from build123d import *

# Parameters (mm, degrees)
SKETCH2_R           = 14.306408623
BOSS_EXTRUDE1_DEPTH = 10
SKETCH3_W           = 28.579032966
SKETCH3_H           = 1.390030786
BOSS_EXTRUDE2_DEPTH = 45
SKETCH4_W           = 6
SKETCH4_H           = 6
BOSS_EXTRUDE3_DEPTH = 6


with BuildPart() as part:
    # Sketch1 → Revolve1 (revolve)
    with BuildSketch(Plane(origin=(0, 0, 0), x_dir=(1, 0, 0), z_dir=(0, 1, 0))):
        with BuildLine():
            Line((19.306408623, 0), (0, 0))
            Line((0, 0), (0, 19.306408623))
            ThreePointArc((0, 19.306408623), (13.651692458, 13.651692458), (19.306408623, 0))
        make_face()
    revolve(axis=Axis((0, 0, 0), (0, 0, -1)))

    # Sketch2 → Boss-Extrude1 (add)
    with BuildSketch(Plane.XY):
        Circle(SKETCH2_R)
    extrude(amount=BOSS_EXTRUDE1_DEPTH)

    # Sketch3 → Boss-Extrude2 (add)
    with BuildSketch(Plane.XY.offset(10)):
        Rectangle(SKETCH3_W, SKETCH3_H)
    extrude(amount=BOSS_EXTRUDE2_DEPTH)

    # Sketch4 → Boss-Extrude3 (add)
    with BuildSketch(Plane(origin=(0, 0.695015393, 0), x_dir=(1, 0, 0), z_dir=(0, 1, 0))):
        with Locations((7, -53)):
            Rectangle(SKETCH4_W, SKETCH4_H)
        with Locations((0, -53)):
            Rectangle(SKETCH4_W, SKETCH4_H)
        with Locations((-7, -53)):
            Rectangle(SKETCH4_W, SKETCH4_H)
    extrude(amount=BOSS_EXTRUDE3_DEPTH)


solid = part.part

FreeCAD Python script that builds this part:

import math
import FreeCAD as App
import Part
import Sketcher

V = App.Vector
Q = App.Units.Quantity


def add_polygon(sketch, points):
    """Adds a closed chain of lines whose ends are joined by coincident constraints."""
    first, n = sketch.GeometryCount, len(points)
    for a, b in zip(points, points[1:] + points[:1]):
        sketch.addGeometry(Part.LineSegment(App.Vector(*a, 0), App.Vector(*b, 0)), False)
    for i in range(n):
        sketch.addConstraint(Sketcher.Constraint("Coincident", first + i, 2, first + (i + 1) % n, 1))

doc = App.newDocument("Part")
params = doc.addObject("Spreadsheet::Sheet", "Params")
for row, (alias, value) in enumerate([
    ("revolution_angle", "360 deg"),
    ("pad1_length", "10 mm"),
    ("pad2_length", "45 mm"),
    ("sketch4_width", "6 mm"),
    ("pad3_length", "6 mm"),
], start=1):
    params.set(f"A{row}", alias)
    params.set(f"B{row}", "=" + value)
    params.setAlias(f"B{row}", alias)

body = doc.addObject("PartDesign::Body", "Body")

# Sketch on XZ plane
sketch1 = body.newObject("Sketcher::SketchObject", "Sketch")
sketch1.AttachmentSupport = (doc.getObject("XZ_Plane"), [""])
sketch1.MapMode = "FlatFace"
sketch1.addGeometry([
    Part.LineSegment(V(0, 0, 0), V(19, 0, 0)),
    Part.ArcOfCircle(Part.Circle(V(0, 0, 0), V(0, 0, 1), 19), math.radians(-90), math.radians(0)),
    Part.LineSegment(V(0, -19, 0), V(0, 0, 0)),
], False)
sketch1.addConstraint([
    Sketcher.Constraint("Coincident", 0, 2, 1, 2),
    Sketcher.Constraint("Coincident", 1, 1, 2, 1),
    Sketcher.Constraint("Coincident", 2, 2, 0, 1),
    Sketcher.Constraint("Horizontal", 0),
    Sketcher.Constraint("Vertical", 2),
    Sketcher.Constraint("Coincident", 1, 3, -1, 1),
    Sketcher.Constraint("Coincident", 2, 2, -1, 1),
    Sketcher.Constraint("Radius", 1, Q("19.306409 mm")),
])
revolution = body.newObject("PartDesign::Revolution", "Revolution")
revolution.Profile = sketch1
revolution.ReferenceAxis = (sketch1, ["V_Axis"])
revolution.setExpression("Angle", "Params.revolution_angle")

# Sketch on XY plane
sketch2 = body.newObject("Sketcher::SketchObject", "Sketch001")
sketch2.AttachmentSupport = (doc.getObject("XY_Plane"), [""])
sketch2.MapMode = "FlatFace"
sketch2.addGeometry(Part.Circle(V(0, 0, 0), V(0, 0, 1), 14), False)
sketch2.addConstraint([
    Sketcher.Constraint("Coincident", 0, 3, -1, 1),
    Sketcher.Constraint("Diameter", 0, Q("28.612817 mm")),
])
pad1 = body.newObject("PartDesign::Pad", "Pad")
pad1.Profile = sketch2
pad1.setExpression("Length", "Params.pad1_length")

# Sketch on XY plane
sketch3 = body.newObject("Sketcher::SketchObject", "Sketch002")
sketch3.AttachmentSupport = (doc.getObject("XY_Plane"), [""])
sketch3.MapMode = "FlatFace"
sketch3.AttachmentOffset = App.Placement(V(0, 0, 10), App.Rotation())
add_polygon(sketch3, [(-14.3, 0.7), (-14.3, -0.7), (14.3, -0.7), (14.3, 0.7)])  # lines 0-3
sketch3.addConstraint([
    Sketcher.Constraint("Vertical", 0),
    Sketcher.Constraint("Horizontal", 1),
    Sketcher.Constraint("Vertical", 2),
    Sketcher.Constraint("Horizontal", 3),
    Sketcher.Constraint("Symmetric", 0, 2, 2, 2, -1, 1),
    Sketcher.Constraint("DistanceY", 0, 2, 0, 1, Q("1.390031 mm")),
    Sketcher.Constraint("DistanceX", 1, 1, 1, 2, Q("28.579033 mm")),
])
pad2 = body.newObject("PartDesign::Pad", "Pad001")
pad2.Profile = sketch3
pad2.setExpression("Length", "Params.pad2_length")

# Sketch on XZ plane
sketch4 = body.newObject("Sketcher::SketchObject", "Sketch003")
sketch4.AttachmentSupport = (doc.getObject("XZ_Plane"), [""])
sketch4.MapMode = "FlatFace"
sketch4.AttachmentOffset = App.Placement(V(0, 0, -0.695015), App.Rotation())
add_polygon(sketch4, [(4, 50), (4, 56), (10, 56), (10, 50)])  # lines 0-3
add_polygon(sketch4, [(-3, 50), (-3, 56), (3, 56), (3, 50)])  # lines 4-7
add_polygon(sketch4, [(-10, 50), (-10, 56), (-4, 56), (-4, 50)])  # lines 8-11
sketch4.addConstraint([
    Sketcher.Constraint("Vertical", 0),
    Sketcher.Constraint("Horizontal", 1),
    Sketcher.Constraint("Vertical", 2),
    Sketcher.Constraint("Horizontal", 3),
    Sketcher.Constraint("Vertical", 4),
    Sketcher.Constraint("Horizontal", 5),
    Sketcher.Constraint("Vertical", 6),
    Sketcher.Constraint("Horizontal", 7),
    Sketcher.Constraint("Vertical", 8),
    Sketcher.Constraint("Horizontal", 9),
    Sketcher.Constraint("Vertical", 10),
    Sketcher.Constraint("Horizontal", 11),
    Sketcher.Constraint("Symmetric", 1, 2, 8, 2, -2),
    Sketcher.Constraint("Symmetric", 3, 2, 10, 2, -2),
    Sketcher.Constraint("Horizontal", 1, 2, 4, 2),
    Sketcher.Constraint("Horizontal", 3, 2, 6, 2),
    Sketcher.Constraint("Equal", 3, 5),
    Sketcher.Constraint("Equal", 11, 0),
    Sketcher.Constraint("DistanceX", 1, 1, 1, 2, Q("6 mm")),
    Sketcher.Constraint("DistanceX", -1, 1, 0, 2, Q("4 mm")),
    Sketcher.Constraint("DistanceY", -1, 1, 0, 2, Q("56 mm")),
    Sketcher.Constraint("DistanceX", 4, 2, -1, 1, Q("3 mm")),
])
sketch4.setExpression("Constraints[30]", "Params.sketch4_width")
pad3 = body.newObject("PartDesign::Pad", "Pad002")
pad3.Profile = sketch4
pad3.setExpression("Length", "Params.pad3_length")
pad3.Reversed = True

doc.recompute()
